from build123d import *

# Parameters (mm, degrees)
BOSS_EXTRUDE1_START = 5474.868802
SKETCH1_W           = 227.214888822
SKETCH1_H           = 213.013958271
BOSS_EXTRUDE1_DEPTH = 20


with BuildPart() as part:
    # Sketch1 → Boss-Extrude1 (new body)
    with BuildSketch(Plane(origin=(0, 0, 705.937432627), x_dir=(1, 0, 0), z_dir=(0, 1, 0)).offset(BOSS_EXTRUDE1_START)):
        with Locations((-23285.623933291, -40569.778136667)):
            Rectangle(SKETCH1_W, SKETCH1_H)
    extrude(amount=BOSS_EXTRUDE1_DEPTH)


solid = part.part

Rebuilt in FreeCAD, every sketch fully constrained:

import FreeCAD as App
import Part
import Sketcher

V = App.Vector

doc = App.newDocument("Part")
params = doc.addObject("Spreadsheet::Sheet", "Params")
for row, (alias, value) in enumerate([
    ("pad1_length", "20 mm"),
], start=1):
    params.set(f"A{row}", alias)
    params.set(f"B{row}", "=" + value)
    params.setAlias(f"B{row}", alias)

body = doc.addObject("PartDesign::Body", "Body")

# Sketch on XZ plane
sketch1 = doc.addObject("Sketcher::SketchObject", "Sketch")
body.addObject(sketch1)
sketch1.AttachmentSupport = (doc.XZ_Plane, [""])
sketch1.MapMode = "FlatFace"
sketch1.AttachmentOffset = App.Placement(V(0, 0, -5474.868802), App.Rotation())
sketch1.addGeometry([
    Part.LineSegment(V(-23399, 41169, 0), V(-23399, 41382, 0)),
    Part.LineSegment(V(-23399, 41382, 0), V(-23172, 41382, 0)),
    Part.LineSegment(V(-23172, 41382, 0), V(-23172, 41169, 0)),
    Part.LineSegment(V(-23172, 41169, 0), V(-23399, 41169, 0)),
], False)
sketch1.addConstraint([
    Sketcher.Constraint("Coincident", 0, 2, 1, 1),
    Sketcher.Constraint("Coincident", 1, 2, 2, 1),
    Sketcher.Constraint("Coincident", 2, 2, 3, 1),
    Sketcher.Constraint("Coincident", 3, 2, 0, 1),
    Sketcher.Constraint("Vertical", 0),
    Sketcher.Constraint("Horizontal", 1),
    Sketcher.Constraint("Vertical", 2),
    Sketcher.Constraint("Horizontal", 3),
    Sketcher.Constraint("DistanceX", 1, 1, 1, 2, 227.214889),
    Sketcher.Constraint("DistanceY", 0, 1, 0, 2, 213.013958),
    Sketcher.Constraint("DistanceY", -1, 1, 0, 2, 41382.222548),
    Sketcher.Constraint("DistanceX", 1, 2, -1, 1, 23172.016489),
])
pad1 = doc.addObject("PartDesign::Pad", "Pad")
body.addObject(pad1)
pad1.Profile = sketch1
pad1.setExpression("Length", "Params.pad1_length")
pad1.Reversed = True

doc.recompute()
